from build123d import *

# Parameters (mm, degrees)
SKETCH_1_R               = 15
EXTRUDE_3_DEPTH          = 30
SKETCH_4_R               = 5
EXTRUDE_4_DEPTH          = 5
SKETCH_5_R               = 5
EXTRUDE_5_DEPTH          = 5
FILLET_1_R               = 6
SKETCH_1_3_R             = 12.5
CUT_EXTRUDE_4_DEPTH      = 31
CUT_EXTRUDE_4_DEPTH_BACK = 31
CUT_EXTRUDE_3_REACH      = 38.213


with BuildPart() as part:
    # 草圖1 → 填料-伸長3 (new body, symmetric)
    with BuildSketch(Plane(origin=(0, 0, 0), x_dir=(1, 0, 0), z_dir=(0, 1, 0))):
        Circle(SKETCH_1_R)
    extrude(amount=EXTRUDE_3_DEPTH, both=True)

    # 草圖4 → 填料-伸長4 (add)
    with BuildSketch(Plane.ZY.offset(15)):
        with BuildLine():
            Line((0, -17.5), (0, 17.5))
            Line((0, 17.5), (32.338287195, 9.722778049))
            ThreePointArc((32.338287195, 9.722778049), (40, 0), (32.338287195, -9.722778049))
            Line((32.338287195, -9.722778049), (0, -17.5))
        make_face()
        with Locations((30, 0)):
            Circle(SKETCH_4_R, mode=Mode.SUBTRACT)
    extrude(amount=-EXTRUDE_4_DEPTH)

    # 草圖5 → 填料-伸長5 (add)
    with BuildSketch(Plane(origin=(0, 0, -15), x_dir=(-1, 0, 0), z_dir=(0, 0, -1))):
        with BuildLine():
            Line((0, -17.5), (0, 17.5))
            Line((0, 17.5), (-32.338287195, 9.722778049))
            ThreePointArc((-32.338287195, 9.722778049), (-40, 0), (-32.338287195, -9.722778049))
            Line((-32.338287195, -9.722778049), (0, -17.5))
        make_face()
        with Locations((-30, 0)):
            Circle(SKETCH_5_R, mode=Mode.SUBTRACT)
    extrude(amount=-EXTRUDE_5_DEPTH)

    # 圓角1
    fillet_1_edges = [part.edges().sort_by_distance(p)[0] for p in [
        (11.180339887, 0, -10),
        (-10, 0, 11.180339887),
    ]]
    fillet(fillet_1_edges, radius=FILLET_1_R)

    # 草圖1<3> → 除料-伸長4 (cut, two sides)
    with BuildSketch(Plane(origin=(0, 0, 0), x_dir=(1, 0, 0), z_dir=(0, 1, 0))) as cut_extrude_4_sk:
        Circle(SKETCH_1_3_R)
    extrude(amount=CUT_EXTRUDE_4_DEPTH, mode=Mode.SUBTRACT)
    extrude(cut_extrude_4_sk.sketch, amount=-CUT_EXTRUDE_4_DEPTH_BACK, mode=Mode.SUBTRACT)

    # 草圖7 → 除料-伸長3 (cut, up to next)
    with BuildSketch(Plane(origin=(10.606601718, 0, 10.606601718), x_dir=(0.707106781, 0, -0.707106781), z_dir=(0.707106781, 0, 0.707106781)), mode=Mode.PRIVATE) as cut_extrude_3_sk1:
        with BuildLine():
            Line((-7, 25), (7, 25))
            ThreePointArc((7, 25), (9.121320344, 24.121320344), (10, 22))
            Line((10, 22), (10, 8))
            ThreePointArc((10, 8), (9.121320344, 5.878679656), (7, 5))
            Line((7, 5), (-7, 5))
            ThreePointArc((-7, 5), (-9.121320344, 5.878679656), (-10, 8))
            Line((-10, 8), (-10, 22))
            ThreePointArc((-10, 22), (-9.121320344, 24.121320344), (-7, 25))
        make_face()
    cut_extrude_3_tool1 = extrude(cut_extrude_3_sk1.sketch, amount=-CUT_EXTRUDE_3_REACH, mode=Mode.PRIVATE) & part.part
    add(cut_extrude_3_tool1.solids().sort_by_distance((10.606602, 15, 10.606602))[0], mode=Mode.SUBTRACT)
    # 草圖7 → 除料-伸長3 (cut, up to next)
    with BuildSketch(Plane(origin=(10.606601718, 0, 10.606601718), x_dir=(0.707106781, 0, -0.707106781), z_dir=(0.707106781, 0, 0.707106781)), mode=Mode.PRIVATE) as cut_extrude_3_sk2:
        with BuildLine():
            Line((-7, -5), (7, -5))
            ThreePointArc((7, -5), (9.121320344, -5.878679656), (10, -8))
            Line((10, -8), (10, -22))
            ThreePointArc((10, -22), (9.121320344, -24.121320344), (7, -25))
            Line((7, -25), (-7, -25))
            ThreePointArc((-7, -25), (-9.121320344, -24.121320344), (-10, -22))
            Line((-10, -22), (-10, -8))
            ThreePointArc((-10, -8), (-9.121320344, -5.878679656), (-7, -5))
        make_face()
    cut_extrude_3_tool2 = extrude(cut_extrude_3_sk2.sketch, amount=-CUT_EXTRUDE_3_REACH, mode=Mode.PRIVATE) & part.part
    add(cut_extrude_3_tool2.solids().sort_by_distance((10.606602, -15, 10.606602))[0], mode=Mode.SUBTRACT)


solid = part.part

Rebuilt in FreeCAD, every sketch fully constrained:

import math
import FreeCAD as App
import Part
import Sketcher


def edges_at(feature, points):
    """Names of the edges that pass closest to the given points."""
    edges = feature.Shape.Edges
    near = lambda p: min(range(len(edges)), key=lambda i: edges[i].distToShape(Part.Vertex(*p))[0])
    return sorted({f"Edge{near(p) + 1}" for p in points})

doc = App.newDocument("Part")
params = doc.addObject("Spreadsheet::Sheet", "Params")
for row, (alias, value) in enumerate([
    ("sketch1_diameter", "30 mm"),
    ("pad1_length", "60 mm"),
    ("sketch2_diameter", "10 mm"),
    ("sketch2_radius", "10 mm"),
    ("sketch2_width", "35 mm"),
    ("pad2_length", "5 mm"),
    ("sketch3_diameter", "10 mm"),
    ("sketch3_radius", "10 mm"),
    ("sketch3_height", "35 mm"),
    ("pad3_length", "5 mm"),
    ("fillet_radius", "6 mm"),
    ("sketch4_diameter", "25 mm"),
    ("sketch5_radius", "3 mm"),
    ("sketch5_width", "14 mm"),
    ("pocket2_length", "7.5 mm"),
    ("sketch6_radius", "3 mm"),
    ("sketch6_width", "14 mm"),
    ("pocket3_length", "7.5 mm"),
], start=1):
    params.set(f"A{row}", alias)
    params.set(f"B{row}", "=" + value)
    params.setAlias(f"B{row}", alias)

body = doc.addObject("PartDesign::Body", "Body")

# Sketch on XZ plane
sketch1 = doc.addObject("Sketcher::SketchObject", "Sketch")
body.addObject(sketch1)
sketch1.AttachmentSupport = (doc.XZ_Plane, [""])
sketch1.MapMode = "FlatFace"
sketch1.addGeometry(Part.Circle(App.Vector(0, 0, 0), App.Vector(0, 0, 1), 15), False)
sketch1.addConstraint([
    Sketcher.Constraint("Coincident", 0, 3, -1, 1),
    Sketcher.Constraint("Diameter", 0, 30.0),
])
sketch1.setExpression("Constraints[1]", "Params.sketch1_diameter")
pad1 = doc.addObject("PartDesign::Pad", "Pad")
body.addObject(pad1)
pad1.Profile = sketch1
pad1.setExpression("Length", "Params.pad1_length")
pad1.Midplane = True

# Sketch on YZ plane
sketch2 = doc.addObject("Sketcher::SketchObject", "Sketch001")
body.addObject(sketch2)
sketch2.AttachmentSupport = (doc.YZ_Plane, [""])
sketch2.MapMode = "FlatFace"
sketch2.AttachmentOffset = App.Placement(App.Vector(0, 0, -15), App.Rotation())
sketch2.addGeometry([
    Part.LineSegment(App.Vector(18, 0, 0), App.Vector(-18, 0, 0)),  # 0
    Part.LineSegment(App.Vector(-18, 0, 0), App.Vector(-10, 32, 0)),  # 1
    Part.ArcOfCircle(Part.Circle(App.Vector(0, 30, 0), App.Vector(0, 0, 1), 10), math.radians(14), math.radians(166)),  # 2
    Part.LineSegment(App.Vector(10, 32, 0), App.Vector(18, 0, 0)),  # 3
    Part.Circle(App.Vector(0, 30, 0), App.Vector(0, 0, 1), 5),  # 4
], False)
sketch2.addConstraint([
    Sketcher.Constraint("Coincident", 0, 2, 1, 1),
    Sketcher.Constraint("Tangent", 1, 2, 2, 2),
    Sketcher.Constraint("Tangent", 2, 1, 3, 1),
    Sketcher.Constraint("Coincident", 3, 2, 0, 1),
    Sketcher.Constraint("Horizontal", 0),
    Sketcher.Constraint("Coincident", 4, 3, 2, 3),
    Sketcher.Constraint("Symmetric", 0, 2, 3, 2, -1, 1),
    Sketcher.Constraint("PointOnObject", 2, 3, -2),
    Sketcher.Constraint("Diameter", 4, 10.0),
    Sketcher.Constraint("Radius", 2, 10.0),
    Sketcher.Constraint("DistanceX", 0, 2, 0, 1, 35.0),
    Sketcher.Constraint("DistanceY", -1, 1, 2, 3, 30.0),
])
sketch2.setExpression("Constraints[8]", "Params.sketch2_diameter")
sketch2.setExpression("Constraints[9]", "Params.sketch2_radius")
sketch2.setExpression("Constraints[10]", "Params.sketch2_width")
pad2 = doc.addObject("PartDesign::Pad", "Pad001")
body.addObject(pad2)
pad2.Profile = sketch2
pad2.setExpression("Length", "Params.pad2_length")

# Sketch on XY plane
sketch3 = doc.addObject("Sketcher::SketchObject", "Sketch002")
body.addObject(sketch3)
sketch3.AttachmentSupport = (doc.XY_Plane, [""])
sketch3.MapMode = "FlatFace"
sketch3.AttachmentOffset = App.Placement(App.Vector(0, 0, -15), App.Rotation())
sketch3.addGeometry([
    Part.LineSegment(App.Vector(0, -18, 0), App.Vector(0, 18, 0)),  # 0
    Part.LineSegment(App.Vector(0, 18, 0), App.Vector(32, 10, 0)),  # 1
    Part.ArcOfCircle(Part.Circle(App.Vector(30, 0, 0), App.Vector(0, 0, 1), 10), math.radians(-76), math.radians(76)),  # 2
    Part.LineSegment(App.Vector(32, -10, 0), App.Vector(0, -18, 0)),  # 3
    Part.Circle(App.Vector(30, 0, 0), App.Vector(0, 0, 1), 5),  # 4
], False)
sketch3.addConstraint([
    Sketcher.Constraint("Coincident", 0, 2, 1, 1),
    Sketcher.Constraint("Tangent", 1, 2, 2, 2),
    Sketcher.Constraint("Tangent", 2, 1, 3, 1),
    Sketcher.Constraint("Coincident", 3, 2, 0, 1),
    Sketcher.Constraint("Vertical", 0),
    Sketcher.Constraint("Coincident", 4, 3, 2, 3),
    Sketcher.Constraint("Symmetric", 0, 2, 3, 2, -1, 1),
    Sketcher.Constraint("PointOnObject", 2, 3, -1),
    Sketcher.Constraint("Diameter", 4, 10.0),
    Sketcher.Constraint("Radius", 2, 10.0),
    Sketcher.Constraint("DistanceY", 0, 1, 0, 2, 35.0),
    Sketcher.Constraint("DistanceX", -1, 1, 2, 3, 30.0),
])
sketch3.setExpression("Constraints[8]", "Params.sketch3_diameter")
sketch3.setExpression("Constraints[9]", "Params.sketch3_radius")
sketch3.setExpression("Constraints[10]", "Params.sketch3_height")
pad3 = doc.addObject("PartDesign::Pad", "Pad002")
body.addObject(pad3)
pad3.Profile = sketch3
pad3.setExpression("Length", "Params.pad3_length")
doc.recompute()

fillet = doc.addObject("PartDesign::Fillet", "Fillet")
body.addObject(fillet)
fillet.Base = (pad3, edges_at(pad3, [(11.18, 0, -10), (-10, 0, 11.18)]))
fillet.setExpression("Radius", "Params.fillet_radius")

# Sketch on XZ plane
sketch4 = doc.addObject("Sketcher::SketchObject", "Sketch003")
body.addObject(sketch4)
sketch4.AttachmentSupport = (doc.XZ_Plane, [""])
sketch4.MapMode = "FlatFace"
sketch4.addGeometry(Part.Circle(App.Vector(0, 0, 0), App.Vector(0, 0, 1), 12), False)
sketch4.addConstraint([
    Sketcher.Constraint("Coincident", 0, 3, -1, 1),
    Sketcher.Constraint("Diameter", 0, 25.0),
])
sketch4.setExpression("Constraints[1]", "Params.sketch4_diameter")
pocket1 = doc.addObject("PartDesign::Pocket", "Pocket")
body.addObject(pocket1)
pocket1.Profile = sketch4
pocket1.Type = "ThroughAll"
pocket1.Midplane = True

# Sketch on an angled plane
sketch5 = doc.addObject("Sketcher::SketchObject", "Sketch004")
body.addObject(sketch5)
sketch5.Placement = App.Placement(App.Vector(10.606602, 0, 10.606602), App.Rotation(App.Vector(0.707106781, 0, -0.707106781), App.Vector(0, 0.999999999, 0), App.Vector(0.707106781, 0, 0.707106781), "ZXY"))
sketch5.addGeometry([
    Part.LineSegment(App.Vector(7, 25, 0), App.Vector(-7, 25, 0)),  # 0
    Part.ArcOfCircle(Part.Circle(App.Vector(-7, 22, 0), App.Vector(0, 0, 1), 3), math.radians(90), math.radians(180)),  # 1
    Part.LineSegment(App.Vector(-10, 22, 0), App.Vector(-10, 8, 0)),  # 2
    Part.ArcOfCircle(Part.Circle(App.Vector(-7, 8, 0), App.Vector(0, 0, 1), 3), math.radians(180), math.radians(270)),  # 3
    Part.LineSegment(App.Vector(-7, 5, 0), App.Vector(7, 5, 0)),  # 4
    Part.ArcOfCircle(Part.Circle(App.Vector(7, 8, 0), App.Vector(0, 0, 1), 3), math.radians(-90), math.radians(0)),  # 5
    Part.LineSegment(App.Vector(10, 8, 0), App.Vector(10, 22, 0)),  # 6
    Part.ArcOfCircle(Part.Circle(App.Vector(7, 22, 0), App.Vector(0, 0, 1), 3), math.radians(0), math.radians(90)),  # 7
], False)
sketch5.addConstraint([
    Sketcher.Constraint("Tangent", 0, 2, 1, 1),
    Sketcher.Constraint("Tangent", 1, 2, 2, 1),
    Sketcher.Constraint("Tangent", 2, 2, 3, 1),
    Sketcher.Constraint("Tangent", 3, 2, 4, 1),
    Sketcher.Constraint("Tangent", 4, 2, 5, 1),
    Sketcher.Constraint("Tangent", 5, 2, 6, 1),
    Sketcher.Constraint("Tangent", 6, 2, 7, 1),
    Sketcher.Constraint("Tangent", 7, 2, 0, 1),
    Sketcher.Constraint("Horizontal", 0),
    Sketcher.Constraint("Vertical", 2),
    Sketcher.Constraint("Horizontal", 4),
    Sketcher.Constraint("Vertical", 6),
    Sketcher.Constraint("Equal", 1, 3),
    Sketcher.Constraint("Equal", 3, 5),
    Sketcher.Constraint("Equal", 5, 7),
    Sketcher.Constraint("Equal", 4, 2),
    Sketcher.Constraint("Radius", 1, 3.0),
    Sketcher.Constraint("DistanceX", 0, 2, 0, 1, 14.0),
    Sketcher.Constraint("DistanceX", 1, 3, -1, 1, 7.0),
    Sketcher.Constraint("DistanceY", -1, 1, 1, 3, 22.0),
])
sketch5.setExpression("Constraints[16]", "Params.sketch5_radius")
sketch5.setExpression("Constraints[17]", "Params.sketch5_width")
pocket2 = doc.addObject("PartDesign::Pocket", "Pocket001")
body.addObject(pocket2)
pocket2.Profile = sketch5
pocket2.setExpression("Length", "Params.pocket2_length")

# Sketch on an angled plane
sketch6 = doc.addObject("Sketcher::SketchObject", "Sketch005")
body.addObject(sketch6)
sketch6.Placement = App.Placement(App.Vector(10.606602, 0, 10.606602), App.Rotation(App.Vector(0.707106781, 0, -0.707106781), App.Vector(0, 0.999999999, 0), App.Vector(0.707106781, 0, 0.707106781), "ZXY"))
sketch6.addGeometry([
    Part.LineSegment(App.Vector(7, -5, 0), App.Vector(-7, -5, 0)),  # 0
    Part.ArcOfCircle(Part.Circle(App.Vector(-7, -8, 0), App.Vector(0, 0, 1), 3), math.radians(90), math.radians(180)),  # 1
    Part.LineSegment(App.Vector(-10, -8, 0), App.Vector(-10, -22, 0)),  # 2
    Part.ArcOfCircle(Part.Circle(App.Vector(-7, -22, 0), App.Vector(0, 0, 1), 3), math.radians(180), math.radians(270)),  # 3
    Part.LineSegment(App.Vector(-7, -25, 0), App.Vector(7, -25, 0)),  # 4
    Part.ArcOfCircle(Part.Circle(App.Vector(7, -22, 0), App.Vector(0, 0, 1), 3), math.radians(-90), math.radians(0)),  # 5
    Part.LineSegment(App.Vector(10, -22, 0), App.Vector(10, -8, 0)),  # 6
    Part.ArcOfCircle(Part.Circle(App.Vector(7, -8, 0), App.Vector(0, 0, 1), 3), math.radians(0), math.radians(90)),  # 7
], False)
sketch6.addConstraint([
    Sketcher.Constraint("Tangent", 0, 2, 1, 1),
    Sketcher.Constraint("Tangent", 1, 2, 2, 1),
    Sketcher.Constraint("Tangent", 2, 2, 3, 1),
    Sketcher.Constraint("Tangent", 3, 2, 4, 1),
    Sketcher.Constraint("Tangent", 4, 2, 5, 1),
    Sketcher.Constraint("Tangent", 5, 2, 6, 1),
    Sketcher.Constraint("Tangent", 6, 2, 7, 1),
    Sketcher.Constraint("Tangent", 7, 2, 0, 1),
    Sketcher.Constraint("Horizontal", 0),
    Sketcher.Constraint("Vertical", 2),
    Sketcher.Constraint("Horizontal", 4),
    Sketcher.Constraint("Vertical", 6),
    Sketcher.Constraint("Equal", 1, 3),
    Sketcher.Constraint("Equal", 3, 5),
    Sketcher.Constraint("Equal", 5, 7),
    Sketcher.Constraint("Equal", 4, 2),
    Sketcher.Constraint("Radius", 1, 3.0),
    Sketcher.Constraint("DistanceX", 0, 2, 0, 1, 14.0),
    Sketcher.Constraint("DistanceX", 1, 3, -1, 1, 7.0),
    Sketcher.Constraint("DistanceY", 1, 3, -1, 1, 8.0),
])
sketch6.setExpression("Constraints[16]", "Params.sketch6_radius")
sketch6.setExpression("Constraints[17]", "Params.sketch6_width")
pocket3 = doc.addObject("PartDesign::Pocket", "Pocket002")
body.addObject(pocket3)
pocket3.Profile = sketch6
pocket3.setExpression("Length", "Params.pocket3_length")

doc.recompute()
